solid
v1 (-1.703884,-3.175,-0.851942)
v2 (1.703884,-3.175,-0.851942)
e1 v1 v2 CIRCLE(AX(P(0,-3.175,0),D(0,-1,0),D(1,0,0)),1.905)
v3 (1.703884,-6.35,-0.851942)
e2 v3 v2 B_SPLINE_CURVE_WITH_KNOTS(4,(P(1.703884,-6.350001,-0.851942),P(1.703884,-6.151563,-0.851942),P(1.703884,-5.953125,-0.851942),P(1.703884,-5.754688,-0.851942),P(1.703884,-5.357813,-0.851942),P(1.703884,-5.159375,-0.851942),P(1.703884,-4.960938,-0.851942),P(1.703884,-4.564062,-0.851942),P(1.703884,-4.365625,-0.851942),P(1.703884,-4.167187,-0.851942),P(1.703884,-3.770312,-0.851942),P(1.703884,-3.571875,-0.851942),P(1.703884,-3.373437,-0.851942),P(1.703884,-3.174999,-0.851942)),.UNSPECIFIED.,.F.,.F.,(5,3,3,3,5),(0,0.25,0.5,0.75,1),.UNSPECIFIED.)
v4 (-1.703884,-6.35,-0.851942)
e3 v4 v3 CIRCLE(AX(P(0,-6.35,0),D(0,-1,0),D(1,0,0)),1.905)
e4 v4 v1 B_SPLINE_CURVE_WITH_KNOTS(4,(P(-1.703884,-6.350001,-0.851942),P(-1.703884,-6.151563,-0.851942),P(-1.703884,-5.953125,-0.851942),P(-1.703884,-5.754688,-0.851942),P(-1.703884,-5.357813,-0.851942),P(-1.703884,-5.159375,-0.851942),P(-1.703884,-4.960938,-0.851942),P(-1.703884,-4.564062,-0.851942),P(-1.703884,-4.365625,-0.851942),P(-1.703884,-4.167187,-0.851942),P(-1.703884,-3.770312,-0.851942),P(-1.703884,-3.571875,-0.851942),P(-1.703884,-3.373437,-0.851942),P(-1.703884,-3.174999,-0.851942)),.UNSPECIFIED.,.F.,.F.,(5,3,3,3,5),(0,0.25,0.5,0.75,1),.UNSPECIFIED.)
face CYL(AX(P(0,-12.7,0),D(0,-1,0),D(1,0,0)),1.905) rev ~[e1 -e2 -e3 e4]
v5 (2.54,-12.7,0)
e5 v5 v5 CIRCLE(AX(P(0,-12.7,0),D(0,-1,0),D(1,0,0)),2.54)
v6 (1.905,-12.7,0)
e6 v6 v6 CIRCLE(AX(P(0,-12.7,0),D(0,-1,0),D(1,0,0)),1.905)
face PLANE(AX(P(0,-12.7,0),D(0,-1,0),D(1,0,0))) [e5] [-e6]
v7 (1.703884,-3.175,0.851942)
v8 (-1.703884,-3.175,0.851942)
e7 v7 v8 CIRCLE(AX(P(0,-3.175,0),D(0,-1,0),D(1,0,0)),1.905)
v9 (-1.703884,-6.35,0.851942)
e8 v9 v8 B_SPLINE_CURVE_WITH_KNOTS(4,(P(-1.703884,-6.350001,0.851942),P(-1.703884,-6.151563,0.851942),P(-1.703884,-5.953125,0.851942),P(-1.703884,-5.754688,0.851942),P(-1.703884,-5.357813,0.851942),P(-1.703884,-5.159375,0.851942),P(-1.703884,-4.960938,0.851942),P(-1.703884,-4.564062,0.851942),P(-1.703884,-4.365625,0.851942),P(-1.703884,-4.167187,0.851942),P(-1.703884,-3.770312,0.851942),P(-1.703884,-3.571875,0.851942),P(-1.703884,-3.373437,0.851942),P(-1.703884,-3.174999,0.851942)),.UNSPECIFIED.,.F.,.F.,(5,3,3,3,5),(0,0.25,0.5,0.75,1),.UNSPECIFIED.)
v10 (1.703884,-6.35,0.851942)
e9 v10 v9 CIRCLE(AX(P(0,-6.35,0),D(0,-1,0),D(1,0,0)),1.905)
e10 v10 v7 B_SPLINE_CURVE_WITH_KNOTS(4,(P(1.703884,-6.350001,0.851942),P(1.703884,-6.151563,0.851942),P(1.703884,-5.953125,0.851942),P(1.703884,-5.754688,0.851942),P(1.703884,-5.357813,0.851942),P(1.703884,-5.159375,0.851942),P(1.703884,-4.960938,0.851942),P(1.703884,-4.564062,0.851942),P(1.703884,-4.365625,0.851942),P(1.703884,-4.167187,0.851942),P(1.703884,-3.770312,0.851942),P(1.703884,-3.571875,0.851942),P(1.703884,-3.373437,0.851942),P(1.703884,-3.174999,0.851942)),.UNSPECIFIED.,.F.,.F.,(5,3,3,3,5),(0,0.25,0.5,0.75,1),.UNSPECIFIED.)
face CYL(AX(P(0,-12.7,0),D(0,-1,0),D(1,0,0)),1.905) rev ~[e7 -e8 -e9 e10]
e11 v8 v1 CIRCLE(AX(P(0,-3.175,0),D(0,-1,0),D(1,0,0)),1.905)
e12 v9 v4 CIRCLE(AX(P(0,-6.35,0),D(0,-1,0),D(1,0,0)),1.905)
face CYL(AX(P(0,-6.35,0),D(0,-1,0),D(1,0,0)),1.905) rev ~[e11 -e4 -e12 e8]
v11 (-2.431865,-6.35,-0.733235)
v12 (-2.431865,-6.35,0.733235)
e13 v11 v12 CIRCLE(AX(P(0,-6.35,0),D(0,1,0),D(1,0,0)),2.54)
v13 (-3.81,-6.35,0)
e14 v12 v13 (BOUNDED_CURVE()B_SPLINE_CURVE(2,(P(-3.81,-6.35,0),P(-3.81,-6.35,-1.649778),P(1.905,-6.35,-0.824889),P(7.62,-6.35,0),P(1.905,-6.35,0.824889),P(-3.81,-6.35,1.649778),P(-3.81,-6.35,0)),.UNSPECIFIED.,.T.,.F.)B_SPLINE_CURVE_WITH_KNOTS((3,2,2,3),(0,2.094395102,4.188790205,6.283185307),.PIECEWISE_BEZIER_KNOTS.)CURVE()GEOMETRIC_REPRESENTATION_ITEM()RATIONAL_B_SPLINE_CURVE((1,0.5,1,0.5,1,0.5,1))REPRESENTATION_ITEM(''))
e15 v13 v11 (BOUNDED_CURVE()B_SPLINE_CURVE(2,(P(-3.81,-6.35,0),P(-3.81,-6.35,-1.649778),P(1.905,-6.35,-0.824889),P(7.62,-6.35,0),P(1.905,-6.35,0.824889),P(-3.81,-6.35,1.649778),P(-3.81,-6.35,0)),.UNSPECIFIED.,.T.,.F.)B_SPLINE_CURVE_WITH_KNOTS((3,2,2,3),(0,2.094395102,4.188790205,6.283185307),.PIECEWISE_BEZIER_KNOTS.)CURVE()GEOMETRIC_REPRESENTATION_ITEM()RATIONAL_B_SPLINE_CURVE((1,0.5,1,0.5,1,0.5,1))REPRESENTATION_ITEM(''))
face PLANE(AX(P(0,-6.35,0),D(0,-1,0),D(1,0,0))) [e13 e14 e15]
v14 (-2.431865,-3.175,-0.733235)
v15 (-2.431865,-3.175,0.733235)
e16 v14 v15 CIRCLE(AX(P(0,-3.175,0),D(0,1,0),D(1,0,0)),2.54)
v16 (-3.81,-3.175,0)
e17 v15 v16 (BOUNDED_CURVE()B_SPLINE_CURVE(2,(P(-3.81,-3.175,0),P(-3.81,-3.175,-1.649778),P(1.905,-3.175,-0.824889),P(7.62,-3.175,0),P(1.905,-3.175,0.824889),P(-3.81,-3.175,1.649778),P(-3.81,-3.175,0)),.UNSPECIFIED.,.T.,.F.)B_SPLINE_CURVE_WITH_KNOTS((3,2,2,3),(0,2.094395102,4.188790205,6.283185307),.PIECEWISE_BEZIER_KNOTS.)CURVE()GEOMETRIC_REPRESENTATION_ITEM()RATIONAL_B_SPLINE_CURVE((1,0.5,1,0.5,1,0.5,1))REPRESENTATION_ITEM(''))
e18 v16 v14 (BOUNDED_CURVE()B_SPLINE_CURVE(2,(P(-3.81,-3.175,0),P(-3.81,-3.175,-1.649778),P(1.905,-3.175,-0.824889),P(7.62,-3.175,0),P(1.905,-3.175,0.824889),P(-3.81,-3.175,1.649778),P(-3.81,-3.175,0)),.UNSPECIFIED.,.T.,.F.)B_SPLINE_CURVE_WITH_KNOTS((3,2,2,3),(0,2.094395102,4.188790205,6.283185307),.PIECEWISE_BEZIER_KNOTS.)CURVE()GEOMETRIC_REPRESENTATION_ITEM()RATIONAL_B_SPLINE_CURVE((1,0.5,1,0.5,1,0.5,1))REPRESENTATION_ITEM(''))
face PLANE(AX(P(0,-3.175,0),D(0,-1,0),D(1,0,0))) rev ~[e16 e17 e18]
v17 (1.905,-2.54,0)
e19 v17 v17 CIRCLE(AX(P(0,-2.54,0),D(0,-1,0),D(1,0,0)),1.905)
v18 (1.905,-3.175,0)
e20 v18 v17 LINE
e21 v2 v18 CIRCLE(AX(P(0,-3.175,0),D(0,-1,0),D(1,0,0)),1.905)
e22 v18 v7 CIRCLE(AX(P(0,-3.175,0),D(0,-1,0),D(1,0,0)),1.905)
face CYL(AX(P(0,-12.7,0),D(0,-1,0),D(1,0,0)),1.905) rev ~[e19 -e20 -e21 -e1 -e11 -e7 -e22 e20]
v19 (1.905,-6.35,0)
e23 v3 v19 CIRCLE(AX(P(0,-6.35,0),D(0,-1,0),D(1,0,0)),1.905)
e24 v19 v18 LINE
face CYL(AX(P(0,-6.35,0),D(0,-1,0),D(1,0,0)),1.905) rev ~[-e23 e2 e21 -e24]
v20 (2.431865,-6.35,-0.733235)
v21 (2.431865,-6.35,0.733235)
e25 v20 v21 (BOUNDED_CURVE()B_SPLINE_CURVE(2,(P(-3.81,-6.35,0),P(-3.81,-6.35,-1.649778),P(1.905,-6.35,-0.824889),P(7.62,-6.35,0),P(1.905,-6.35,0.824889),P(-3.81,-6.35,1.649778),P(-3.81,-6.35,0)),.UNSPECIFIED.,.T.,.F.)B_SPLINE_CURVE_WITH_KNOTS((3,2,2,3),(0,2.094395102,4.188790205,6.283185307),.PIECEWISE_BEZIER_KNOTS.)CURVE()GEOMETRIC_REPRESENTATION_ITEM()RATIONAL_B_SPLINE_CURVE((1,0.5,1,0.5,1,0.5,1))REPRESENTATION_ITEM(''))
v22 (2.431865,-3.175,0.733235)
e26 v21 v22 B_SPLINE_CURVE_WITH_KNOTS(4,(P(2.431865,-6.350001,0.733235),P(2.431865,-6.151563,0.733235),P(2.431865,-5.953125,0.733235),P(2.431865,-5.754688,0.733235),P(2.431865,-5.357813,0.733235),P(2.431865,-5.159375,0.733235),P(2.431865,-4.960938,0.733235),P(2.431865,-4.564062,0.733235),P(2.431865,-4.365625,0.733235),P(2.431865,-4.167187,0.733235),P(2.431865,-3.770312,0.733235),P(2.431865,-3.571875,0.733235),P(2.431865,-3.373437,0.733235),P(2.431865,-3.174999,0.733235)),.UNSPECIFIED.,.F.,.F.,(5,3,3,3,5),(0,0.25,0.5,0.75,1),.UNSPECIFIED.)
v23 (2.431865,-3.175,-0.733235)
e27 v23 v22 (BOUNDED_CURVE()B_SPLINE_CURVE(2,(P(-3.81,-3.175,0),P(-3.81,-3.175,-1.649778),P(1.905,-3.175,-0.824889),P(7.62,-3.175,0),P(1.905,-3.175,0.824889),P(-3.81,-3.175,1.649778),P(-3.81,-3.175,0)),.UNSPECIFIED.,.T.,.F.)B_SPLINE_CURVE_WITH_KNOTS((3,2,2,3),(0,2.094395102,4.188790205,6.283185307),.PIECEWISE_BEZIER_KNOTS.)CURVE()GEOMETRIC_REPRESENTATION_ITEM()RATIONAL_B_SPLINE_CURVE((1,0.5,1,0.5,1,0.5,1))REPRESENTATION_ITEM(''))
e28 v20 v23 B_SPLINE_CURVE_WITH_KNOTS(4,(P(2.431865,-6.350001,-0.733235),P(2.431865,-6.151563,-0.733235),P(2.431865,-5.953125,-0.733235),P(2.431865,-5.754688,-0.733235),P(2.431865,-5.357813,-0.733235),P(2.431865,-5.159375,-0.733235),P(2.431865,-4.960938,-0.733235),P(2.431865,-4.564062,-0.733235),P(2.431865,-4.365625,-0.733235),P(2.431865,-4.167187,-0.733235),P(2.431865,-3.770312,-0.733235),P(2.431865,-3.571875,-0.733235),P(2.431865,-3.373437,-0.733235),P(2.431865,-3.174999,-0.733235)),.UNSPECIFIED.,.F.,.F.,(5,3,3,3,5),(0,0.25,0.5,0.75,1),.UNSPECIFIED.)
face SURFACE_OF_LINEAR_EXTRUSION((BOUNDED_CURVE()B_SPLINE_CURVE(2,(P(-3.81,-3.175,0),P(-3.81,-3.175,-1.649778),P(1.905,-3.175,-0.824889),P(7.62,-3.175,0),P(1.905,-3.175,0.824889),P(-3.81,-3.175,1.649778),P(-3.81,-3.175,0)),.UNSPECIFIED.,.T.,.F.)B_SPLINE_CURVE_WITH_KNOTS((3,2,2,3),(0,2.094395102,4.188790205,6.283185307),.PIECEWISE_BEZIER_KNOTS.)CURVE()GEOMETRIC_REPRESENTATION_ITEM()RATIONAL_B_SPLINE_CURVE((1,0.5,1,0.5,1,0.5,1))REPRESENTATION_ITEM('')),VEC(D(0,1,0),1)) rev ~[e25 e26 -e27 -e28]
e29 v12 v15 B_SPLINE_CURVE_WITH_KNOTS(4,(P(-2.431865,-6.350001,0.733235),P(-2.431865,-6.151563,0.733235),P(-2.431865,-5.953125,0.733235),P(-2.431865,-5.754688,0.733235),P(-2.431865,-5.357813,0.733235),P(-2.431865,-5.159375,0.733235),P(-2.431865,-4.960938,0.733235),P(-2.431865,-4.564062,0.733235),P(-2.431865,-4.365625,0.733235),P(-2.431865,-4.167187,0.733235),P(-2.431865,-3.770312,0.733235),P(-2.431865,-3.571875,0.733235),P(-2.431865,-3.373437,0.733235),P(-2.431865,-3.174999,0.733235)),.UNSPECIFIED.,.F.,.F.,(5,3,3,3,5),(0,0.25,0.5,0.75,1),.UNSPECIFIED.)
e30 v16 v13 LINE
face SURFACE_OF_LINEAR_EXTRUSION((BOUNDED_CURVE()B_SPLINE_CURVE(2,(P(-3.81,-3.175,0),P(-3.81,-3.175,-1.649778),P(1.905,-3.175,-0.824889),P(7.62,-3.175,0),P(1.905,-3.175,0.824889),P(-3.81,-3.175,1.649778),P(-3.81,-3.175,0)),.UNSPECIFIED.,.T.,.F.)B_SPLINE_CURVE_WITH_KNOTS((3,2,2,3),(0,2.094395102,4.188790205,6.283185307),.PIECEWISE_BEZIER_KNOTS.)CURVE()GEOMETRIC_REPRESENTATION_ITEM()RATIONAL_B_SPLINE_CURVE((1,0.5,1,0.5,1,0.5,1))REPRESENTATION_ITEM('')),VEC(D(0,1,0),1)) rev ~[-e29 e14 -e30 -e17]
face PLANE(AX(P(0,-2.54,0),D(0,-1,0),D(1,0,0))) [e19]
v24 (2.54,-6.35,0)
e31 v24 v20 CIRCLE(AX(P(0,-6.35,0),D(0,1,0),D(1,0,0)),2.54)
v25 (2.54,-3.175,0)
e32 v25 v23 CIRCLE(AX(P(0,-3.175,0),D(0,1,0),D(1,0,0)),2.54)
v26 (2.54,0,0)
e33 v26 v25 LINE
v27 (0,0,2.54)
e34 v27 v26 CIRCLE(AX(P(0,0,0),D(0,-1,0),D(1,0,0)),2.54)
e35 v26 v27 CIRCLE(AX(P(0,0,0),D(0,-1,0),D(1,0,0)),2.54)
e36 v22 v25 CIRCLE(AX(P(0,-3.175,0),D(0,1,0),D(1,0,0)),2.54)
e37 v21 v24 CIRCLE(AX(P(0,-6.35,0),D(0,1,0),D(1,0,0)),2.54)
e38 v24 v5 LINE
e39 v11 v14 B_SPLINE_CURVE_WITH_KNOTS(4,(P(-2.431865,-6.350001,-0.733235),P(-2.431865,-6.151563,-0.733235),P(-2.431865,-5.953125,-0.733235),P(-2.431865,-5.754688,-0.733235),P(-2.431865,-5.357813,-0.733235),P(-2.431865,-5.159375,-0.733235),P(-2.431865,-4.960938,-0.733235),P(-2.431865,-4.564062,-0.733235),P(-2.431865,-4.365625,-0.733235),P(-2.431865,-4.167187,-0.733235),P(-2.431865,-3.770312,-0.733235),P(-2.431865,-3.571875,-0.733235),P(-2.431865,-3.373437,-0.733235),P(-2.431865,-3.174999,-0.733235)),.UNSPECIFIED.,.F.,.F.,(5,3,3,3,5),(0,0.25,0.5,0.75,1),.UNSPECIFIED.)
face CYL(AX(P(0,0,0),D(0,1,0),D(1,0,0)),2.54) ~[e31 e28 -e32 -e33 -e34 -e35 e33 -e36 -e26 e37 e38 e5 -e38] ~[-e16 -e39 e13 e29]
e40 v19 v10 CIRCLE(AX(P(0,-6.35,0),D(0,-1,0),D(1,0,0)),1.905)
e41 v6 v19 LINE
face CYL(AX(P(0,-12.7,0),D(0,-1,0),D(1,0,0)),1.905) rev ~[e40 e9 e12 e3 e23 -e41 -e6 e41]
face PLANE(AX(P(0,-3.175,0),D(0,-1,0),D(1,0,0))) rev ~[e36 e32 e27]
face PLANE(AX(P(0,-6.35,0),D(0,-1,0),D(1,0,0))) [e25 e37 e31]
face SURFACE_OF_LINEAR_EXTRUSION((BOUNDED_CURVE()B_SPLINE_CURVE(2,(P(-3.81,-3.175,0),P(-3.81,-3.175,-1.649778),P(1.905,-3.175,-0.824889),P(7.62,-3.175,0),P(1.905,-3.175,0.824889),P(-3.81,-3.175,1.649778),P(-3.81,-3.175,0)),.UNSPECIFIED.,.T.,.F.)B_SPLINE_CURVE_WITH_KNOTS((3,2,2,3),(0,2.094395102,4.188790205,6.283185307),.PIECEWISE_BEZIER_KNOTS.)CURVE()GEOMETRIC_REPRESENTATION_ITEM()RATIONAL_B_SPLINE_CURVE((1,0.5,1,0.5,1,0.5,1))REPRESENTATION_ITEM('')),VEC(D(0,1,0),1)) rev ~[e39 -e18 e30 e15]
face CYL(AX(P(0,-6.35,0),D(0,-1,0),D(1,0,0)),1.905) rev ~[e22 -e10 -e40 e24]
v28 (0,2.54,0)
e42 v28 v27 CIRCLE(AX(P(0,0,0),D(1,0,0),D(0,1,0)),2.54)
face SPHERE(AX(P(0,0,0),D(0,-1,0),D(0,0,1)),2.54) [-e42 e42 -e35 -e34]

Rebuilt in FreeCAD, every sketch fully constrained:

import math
import FreeCAD as App
import Part
import Sketcher

V = App.Vector
Q = App.Units.Quantity

doc = App.newDocument("Part")
params = doc.addObject("Spreadsheet::Sheet", "Params")
for row, (alias, value) in enumerate([
    ("sketch1_diameter", "0.2 in"),
    ("pad1_length", "0.5 in"),
    ("sketch2_diameter", "0.15 in"),
    ("pocket1_length", "0.4 in"),
    ("sketch3_radius", "0.1 in"),
    ("revolution_angle", "360 deg"),
    ("pad2_length", "0.125 in"),
    ("sketch5_diameter", "0.15 in"),
    ("pocket2_length", "0.125 in"),
], start=1):
    params.set(f"A{row}", alias)
    params.set(f"B{row}", "=" + value)
    params.setAlias(f"B{row}", alias)

body = doc.addObject("PartDesign::Body", "Body")

# Sketch on XZ plane
sketch1 = body.newObject("Sketcher::SketchObject", "Sketch")
sketch1.AttachmentSupport = (doc.getObject("XZ_Plane"), [""])
sketch1.MapMode = "FlatFace"
sketch1.addGeometry(Part.Circle(V(0, 0, 0), V(0, 0, 1), 2.54), False)
sketch1.addConstraint(Sketcher.Constraint("Coincident", 0, 3, -1, 1))
sketch1.addConstraint(Sketcher.Constraint("Diameter", 0, Q("0.2 in")))
sketch1.setExpression("Constraints[1]", "Params.sketch1_diameter")
pad1 = body.newObject("PartDesign::Pad", "Pad")
pad1.Profile = sketch1
pad1.setExpression("Length", "Params.pad1_length")

# Sketch on XZ plane
sketch2 = body.newObject("Sketcher::SketchObject", "Sketch001")
sketch2.AttachmentSupport = (doc.getObject("XZ_Plane"), [""])
sketch2.MapMode = "FlatFace"
sketch2.AttachmentOffset = App.Placement(V(0, 0, 0.5 * 25.4), App.Rotation())
sketch2.addGeometry(Part.Circle(V(0, 0, 0), V(0, 0, 1), 1.905), False)
sketch2.addConstraint(Sketcher.Constraint("Coincident", 0, 3, -1, 1))
sketch2.addConstraint(Sketcher.Constraint("Diameter", 0, Q("0.15 in")))
sketch2.setExpression("Constraints[1]", "Params.sketch2_diameter")
pocket1 = body.newObject("PartDesign::Pocket", "Pocket")
pocket1.Profile = sketch2
pocket1.setExpression("Length", "Params.pocket1_length")

# Sketch on YZ plane
sketch3 = body.newObject("Sketcher::SketchObject", "Sketch002")
sketch3.AttachmentSupport = (doc.getObject("YZ_Plane"), [""])
sketch3.MapMode = "FlatFace"
sketch3.addGeometry(Part.ArcOfCircle(Part.Circle(V(0, 0, 0), V(0, 0, 1), 2.54), math.radians(0), math.radians(90)), False)
sketch3.addGeometry(Part.LineSegment(V(0, 2.54, 0), V(0, 0, 0)), False)
sketch3.addGeometry(Part.LineSegment(V(0, 0, 0), V(2.54, 0, 0)), False)
sketch3.addConstraint(Sketcher.Constraint("Coincident", 0, 2, 1, 1))
sketch3.addConstraint(Sketcher.Constraint("Coincident", 1, 2, 2, 1))
sketch3.addConstraint(Sketcher.Constraint("Coincident", 2, 2, 0, 1))
sketch3.addConstraint(Sketcher.Constraint("Vertical", 1))
sketch3.addConstraint(Sketcher.Constraint("Horizontal", 2))
sketch3.addConstraint(Sketcher.Constraint("Coincident", 0, 3, -1, 1))
sketch3.addConstraint(Sketcher.Constraint("Coincident", 1, 2, -1, 1))
sketch3.addConstraint(Sketcher.Constraint("Radius", 0, Q("0.1 in")))
sketch3.setExpression("Constraints[7]", "Params.sketch3_radius")
revolution = body.newObject("PartDesign::Revolution", "Revolution")
revolution.Profile = sketch3
revolution.ReferenceAxis = (sketch3, ["H_Axis"])
revolution.setExpression("Angle", "Params.revolution_angle")

# Sketch on XZ plane
sketch4 = body.newObject("Sketcher::SketchObject", "Sketch003")
sketch4.AttachmentSupport = (doc.getObject("XZ_Plane"), [""])
sketch4.MapMode = "FlatFace"
sketch4.AttachmentOffset = App.Placement(V(0, 0, 0.125 * 25.4), App.Rotation())
sketch4.addGeometry(Part.BSplineCurve([V(-3.81, 0, 0), V(-3.81, -1.649778, 0), V(1.905, -0.824889, 0), V(7.62, 0, 0), V(1.905, 0.824889, 0), V(-3.81, 1.649778, 0), V(-3.81, 0, 0)], [3, 2, 2, 3], [0, 2.094395102, 4.188790205, 6.283185307], False, 2, [1, 0.5, 1, 0.5, 1, 0.5, 1], False), False)
sketch4.addConstraint(Sketcher.Constraint("Block", 0))
pad2 = body.newObject("PartDesign::Pad", "Pad001")
pad2.Profile = sketch4
pad2.setExpression("Length", "Params.pad2_length")

# Sketch on XZ plane
sketch5 = body.newObject("Sketcher::SketchObject", "Sketch004")
sketch5.AttachmentSupport = (doc.getObject("XZ_Plane"), [""])
sketch5.MapMode = "FlatFace"
sketch5.AttachmentOffset = App.Placement(V(0, 0, 0.25 * 25.4), App.Rotation())
sketch5.addGeometry(Part.Circle(V(0, 0, 0), V(0, 0, 1), 1.905), False)
sketch5.addConstraint(Sketcher.Constraint("Coincident", 0, 3, -1, 1))
sketch5.addConstraint(Sketcher.Constraint("Diameter", 0, Q("0.15 in")))
sketch5.setExpression("Constraints[1]", "Params.sketch5_diameter")
pocket2 = body.newObject("PartDesign::Pocket", "Pocket001")
pocket2.Profile = sketch5
pocket2.setExpression("Length", "Params.pocket2_length")

doc.recompute()
